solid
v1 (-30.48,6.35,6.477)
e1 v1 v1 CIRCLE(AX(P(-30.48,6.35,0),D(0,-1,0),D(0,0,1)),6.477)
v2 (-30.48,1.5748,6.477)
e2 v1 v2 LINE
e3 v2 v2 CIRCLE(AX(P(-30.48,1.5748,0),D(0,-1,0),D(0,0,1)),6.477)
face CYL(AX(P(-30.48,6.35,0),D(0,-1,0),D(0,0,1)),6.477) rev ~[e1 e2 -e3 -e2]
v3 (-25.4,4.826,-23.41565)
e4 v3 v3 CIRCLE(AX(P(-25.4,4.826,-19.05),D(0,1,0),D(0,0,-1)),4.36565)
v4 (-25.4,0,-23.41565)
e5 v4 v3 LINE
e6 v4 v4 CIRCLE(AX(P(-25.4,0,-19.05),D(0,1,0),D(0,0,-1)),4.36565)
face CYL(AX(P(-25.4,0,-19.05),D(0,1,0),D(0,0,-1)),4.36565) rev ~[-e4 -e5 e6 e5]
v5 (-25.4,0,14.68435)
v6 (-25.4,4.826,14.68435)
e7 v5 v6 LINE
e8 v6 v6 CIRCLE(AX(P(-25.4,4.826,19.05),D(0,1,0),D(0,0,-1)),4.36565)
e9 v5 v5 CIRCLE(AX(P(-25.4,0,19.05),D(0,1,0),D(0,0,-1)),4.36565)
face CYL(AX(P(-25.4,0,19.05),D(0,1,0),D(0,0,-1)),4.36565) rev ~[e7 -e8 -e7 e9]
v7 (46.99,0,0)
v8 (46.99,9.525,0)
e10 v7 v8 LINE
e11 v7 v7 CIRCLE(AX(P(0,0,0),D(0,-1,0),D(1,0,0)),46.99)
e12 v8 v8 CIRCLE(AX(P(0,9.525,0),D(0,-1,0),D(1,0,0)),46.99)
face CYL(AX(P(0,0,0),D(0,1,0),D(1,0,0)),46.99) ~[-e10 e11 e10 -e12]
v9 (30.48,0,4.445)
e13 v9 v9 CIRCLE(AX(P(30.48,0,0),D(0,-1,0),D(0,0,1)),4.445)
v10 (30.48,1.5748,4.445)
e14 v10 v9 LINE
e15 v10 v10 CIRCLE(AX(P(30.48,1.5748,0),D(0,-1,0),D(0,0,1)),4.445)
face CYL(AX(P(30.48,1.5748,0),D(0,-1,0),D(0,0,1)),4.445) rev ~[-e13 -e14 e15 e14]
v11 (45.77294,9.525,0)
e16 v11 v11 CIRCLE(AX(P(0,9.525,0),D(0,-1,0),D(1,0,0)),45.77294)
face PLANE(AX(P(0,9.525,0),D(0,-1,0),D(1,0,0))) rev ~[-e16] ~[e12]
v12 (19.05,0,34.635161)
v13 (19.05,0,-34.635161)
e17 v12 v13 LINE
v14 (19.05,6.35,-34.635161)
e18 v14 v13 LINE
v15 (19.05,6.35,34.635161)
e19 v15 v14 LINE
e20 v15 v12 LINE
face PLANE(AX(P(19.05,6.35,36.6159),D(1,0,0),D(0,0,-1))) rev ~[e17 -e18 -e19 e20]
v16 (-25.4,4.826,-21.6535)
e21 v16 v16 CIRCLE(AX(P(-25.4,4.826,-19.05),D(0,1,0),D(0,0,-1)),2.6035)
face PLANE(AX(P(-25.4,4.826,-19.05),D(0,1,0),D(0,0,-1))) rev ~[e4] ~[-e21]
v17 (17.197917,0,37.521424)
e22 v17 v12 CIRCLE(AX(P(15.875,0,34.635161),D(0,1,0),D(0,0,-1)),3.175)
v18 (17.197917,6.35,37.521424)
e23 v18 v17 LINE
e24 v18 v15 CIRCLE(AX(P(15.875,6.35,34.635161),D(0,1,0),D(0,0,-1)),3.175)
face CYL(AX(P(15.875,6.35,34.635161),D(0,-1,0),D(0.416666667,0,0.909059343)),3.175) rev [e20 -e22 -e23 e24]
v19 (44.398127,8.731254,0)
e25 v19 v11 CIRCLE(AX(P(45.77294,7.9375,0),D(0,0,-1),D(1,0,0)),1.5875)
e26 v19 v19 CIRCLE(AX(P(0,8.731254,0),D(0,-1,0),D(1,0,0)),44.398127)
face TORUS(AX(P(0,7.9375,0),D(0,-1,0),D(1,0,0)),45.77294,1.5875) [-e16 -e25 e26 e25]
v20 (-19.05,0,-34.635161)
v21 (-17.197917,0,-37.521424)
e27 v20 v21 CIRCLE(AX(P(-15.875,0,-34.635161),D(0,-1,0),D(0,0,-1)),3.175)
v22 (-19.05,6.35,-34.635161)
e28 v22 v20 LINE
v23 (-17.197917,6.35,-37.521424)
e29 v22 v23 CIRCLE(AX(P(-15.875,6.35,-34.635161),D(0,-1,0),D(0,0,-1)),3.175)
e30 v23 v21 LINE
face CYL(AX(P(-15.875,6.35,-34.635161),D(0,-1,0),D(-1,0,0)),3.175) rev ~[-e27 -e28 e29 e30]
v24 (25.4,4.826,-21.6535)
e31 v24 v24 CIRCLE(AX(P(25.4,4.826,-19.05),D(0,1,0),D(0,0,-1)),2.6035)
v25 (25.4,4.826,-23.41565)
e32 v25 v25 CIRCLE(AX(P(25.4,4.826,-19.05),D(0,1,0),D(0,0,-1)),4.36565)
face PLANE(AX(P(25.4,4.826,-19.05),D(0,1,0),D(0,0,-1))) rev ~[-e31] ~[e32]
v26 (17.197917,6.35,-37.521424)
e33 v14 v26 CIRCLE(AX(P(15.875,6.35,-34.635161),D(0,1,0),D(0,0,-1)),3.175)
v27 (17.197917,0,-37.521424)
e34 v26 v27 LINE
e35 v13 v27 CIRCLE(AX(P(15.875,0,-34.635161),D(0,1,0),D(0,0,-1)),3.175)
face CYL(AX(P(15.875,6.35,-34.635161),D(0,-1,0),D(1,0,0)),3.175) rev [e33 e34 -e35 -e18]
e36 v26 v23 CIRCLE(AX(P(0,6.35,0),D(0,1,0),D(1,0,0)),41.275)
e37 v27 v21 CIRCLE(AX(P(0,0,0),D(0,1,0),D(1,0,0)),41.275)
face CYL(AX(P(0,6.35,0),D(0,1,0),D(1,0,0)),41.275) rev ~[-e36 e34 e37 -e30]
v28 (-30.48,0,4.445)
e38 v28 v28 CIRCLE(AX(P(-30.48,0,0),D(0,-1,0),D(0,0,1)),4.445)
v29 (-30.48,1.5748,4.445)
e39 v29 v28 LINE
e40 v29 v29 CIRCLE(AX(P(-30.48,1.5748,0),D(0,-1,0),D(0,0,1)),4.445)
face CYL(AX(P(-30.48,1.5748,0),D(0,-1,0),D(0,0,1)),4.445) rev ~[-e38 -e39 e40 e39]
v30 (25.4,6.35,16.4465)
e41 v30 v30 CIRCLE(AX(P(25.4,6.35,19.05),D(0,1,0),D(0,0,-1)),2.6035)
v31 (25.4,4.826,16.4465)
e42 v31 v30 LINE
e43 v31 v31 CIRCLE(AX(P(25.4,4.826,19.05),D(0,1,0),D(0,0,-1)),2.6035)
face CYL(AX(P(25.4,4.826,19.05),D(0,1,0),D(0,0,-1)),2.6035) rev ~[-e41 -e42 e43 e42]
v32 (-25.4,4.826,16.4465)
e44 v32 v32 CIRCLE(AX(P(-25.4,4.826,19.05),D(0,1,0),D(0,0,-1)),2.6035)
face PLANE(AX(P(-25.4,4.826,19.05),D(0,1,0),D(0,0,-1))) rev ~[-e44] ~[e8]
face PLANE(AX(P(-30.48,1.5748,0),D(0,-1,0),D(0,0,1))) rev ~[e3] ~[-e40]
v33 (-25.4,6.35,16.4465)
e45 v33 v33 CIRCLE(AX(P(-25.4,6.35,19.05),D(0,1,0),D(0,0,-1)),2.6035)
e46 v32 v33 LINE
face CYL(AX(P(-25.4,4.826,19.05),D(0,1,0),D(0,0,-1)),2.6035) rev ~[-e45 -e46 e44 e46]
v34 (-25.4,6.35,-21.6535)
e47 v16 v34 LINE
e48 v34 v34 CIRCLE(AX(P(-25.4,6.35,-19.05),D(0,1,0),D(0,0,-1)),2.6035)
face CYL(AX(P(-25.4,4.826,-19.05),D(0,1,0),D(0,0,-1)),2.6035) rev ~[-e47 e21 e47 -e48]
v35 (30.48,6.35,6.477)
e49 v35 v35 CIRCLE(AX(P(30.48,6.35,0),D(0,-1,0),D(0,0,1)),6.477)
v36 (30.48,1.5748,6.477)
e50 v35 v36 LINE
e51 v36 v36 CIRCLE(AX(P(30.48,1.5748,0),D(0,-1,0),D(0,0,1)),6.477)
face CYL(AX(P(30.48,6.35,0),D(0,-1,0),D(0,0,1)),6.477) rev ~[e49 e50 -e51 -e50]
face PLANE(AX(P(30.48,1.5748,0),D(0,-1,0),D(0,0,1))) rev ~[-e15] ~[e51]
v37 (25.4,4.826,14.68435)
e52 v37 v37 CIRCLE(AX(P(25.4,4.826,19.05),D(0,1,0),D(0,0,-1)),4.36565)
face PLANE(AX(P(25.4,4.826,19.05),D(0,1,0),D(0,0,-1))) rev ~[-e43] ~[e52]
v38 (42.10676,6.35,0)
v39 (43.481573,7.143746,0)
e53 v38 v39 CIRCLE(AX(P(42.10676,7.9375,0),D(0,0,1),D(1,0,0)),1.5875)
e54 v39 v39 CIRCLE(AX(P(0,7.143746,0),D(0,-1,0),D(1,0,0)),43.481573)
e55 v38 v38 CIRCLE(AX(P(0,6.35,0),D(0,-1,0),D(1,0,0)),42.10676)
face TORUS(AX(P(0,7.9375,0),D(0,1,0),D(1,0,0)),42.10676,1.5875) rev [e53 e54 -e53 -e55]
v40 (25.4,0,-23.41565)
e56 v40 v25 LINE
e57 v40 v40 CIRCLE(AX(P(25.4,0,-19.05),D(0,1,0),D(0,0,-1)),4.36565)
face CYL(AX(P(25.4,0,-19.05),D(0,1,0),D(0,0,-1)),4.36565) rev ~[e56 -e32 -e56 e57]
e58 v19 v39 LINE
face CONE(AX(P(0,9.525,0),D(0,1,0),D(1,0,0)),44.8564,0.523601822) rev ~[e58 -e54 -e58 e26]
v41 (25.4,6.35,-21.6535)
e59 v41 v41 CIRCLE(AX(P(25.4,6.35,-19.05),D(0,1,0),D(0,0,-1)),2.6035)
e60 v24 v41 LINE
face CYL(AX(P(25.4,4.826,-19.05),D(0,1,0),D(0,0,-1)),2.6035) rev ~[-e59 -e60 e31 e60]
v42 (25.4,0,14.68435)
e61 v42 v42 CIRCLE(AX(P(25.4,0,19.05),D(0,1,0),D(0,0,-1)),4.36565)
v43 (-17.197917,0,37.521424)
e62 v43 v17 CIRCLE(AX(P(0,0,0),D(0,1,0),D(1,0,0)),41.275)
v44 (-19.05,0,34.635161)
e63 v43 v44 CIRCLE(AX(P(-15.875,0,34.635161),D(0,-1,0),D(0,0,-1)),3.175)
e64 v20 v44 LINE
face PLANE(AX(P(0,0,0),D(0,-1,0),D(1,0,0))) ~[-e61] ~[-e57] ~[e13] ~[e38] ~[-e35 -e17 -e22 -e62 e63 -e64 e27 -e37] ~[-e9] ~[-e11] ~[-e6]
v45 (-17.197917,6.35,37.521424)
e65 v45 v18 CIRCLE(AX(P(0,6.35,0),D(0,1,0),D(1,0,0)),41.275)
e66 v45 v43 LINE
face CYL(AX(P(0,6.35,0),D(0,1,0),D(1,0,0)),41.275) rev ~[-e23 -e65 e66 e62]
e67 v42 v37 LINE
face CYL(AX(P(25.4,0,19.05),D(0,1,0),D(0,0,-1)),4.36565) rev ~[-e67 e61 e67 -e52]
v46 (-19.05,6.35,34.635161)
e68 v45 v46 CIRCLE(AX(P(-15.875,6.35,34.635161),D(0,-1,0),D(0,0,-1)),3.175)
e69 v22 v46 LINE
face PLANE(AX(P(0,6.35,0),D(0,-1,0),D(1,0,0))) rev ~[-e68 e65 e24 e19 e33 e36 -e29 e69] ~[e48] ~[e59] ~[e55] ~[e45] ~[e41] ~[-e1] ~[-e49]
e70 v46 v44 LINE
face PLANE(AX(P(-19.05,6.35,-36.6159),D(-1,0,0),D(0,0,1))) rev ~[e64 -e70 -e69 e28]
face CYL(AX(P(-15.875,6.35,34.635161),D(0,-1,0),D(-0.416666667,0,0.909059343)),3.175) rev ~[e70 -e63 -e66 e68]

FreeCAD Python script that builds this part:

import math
import FreeCAD as App
import Part
import Sketcher

V = App.Vector
Q = App.Units.Quantity


def edges_at(feature, points):
    """Names of the edges that pass closest to the given points."""
    edges = feature.Shape.Edges
    near = lambda p: min(range(len(edges)), key=lambda i: edges[i].distToShape(Part.Vertex(*p))[0])
    return sorted({f"Edge{near(p) + 1}" for p in points})

doc = App.newDocument("Part")
params = doc.addObject("Spreadsheet::Sheet", "Params")
for row, (alias, value) in enumerate([
    ("sketch1_width", "1.85 in"),
    ("sketch1_height", "0.375 in"),
    ("revolution_angle", "360 deg"),
    ("fillet_radius", "0.0625 in"),
    ("sketch2_radius", "1.625 in"),
    ("sketch3_diameter", "0.35 in"),
    ("hole_diameter", "0.35 in"),
    ("hole_cbore_diameter", "0.51 in"),
    ("hole_cbore_depth", "0.188 in"),
    ("sketch4_diameter", "0.205 in"),
    ("hole2_diameter", "0.205 in"),
    ("hole2_cbore_diameter", "0.343752 in"),
    ("hole2_cbore_depth", "0.19 in"),
    ("fillet2_radius", "0.125 in"),
], start=1):
    params.set(f"A{row}", alias)
    params.set(f"B{row}", "=" + value)
    params.setAlias(f"B{row}", alias)

body = doc.addObject("PartDesign::Body", "Body")

sketch1 = doc.addObject("Sketcher::SketchObject", "Sketch")
body.addObject(sketch1)
sketch1.AttachmentSupport = (doc.XY_Plane, [""])
sketch1.MapMode = "FlatFace"
sketch1.addGeometry([
    Part.LineSegment(V(0, 6.3, 0), V(0, 0, 0)),
    Part.LineSegment(V(0, 0, 0), V(47, 0, 0)),
    Part.LineSegment(V(47, 0, 0), V(47, 9.5, 0)),
    Part.LineSegment(V(47, 9.5, 0), V(44.9, 9.5, 0)),
    Part.LineSegment(V(44.9, 9.5, 0), V(43, 6.3, 0)),
    Part.LineSegment(V(43, 6.3, 0), V(0, 6.3, 0)),
], False)
sketch1.addConstraint([
    Sketcher.Constraint("Coincident", 0, 2, 1, 1),
    Sketcher.Constraint("Coincident", 1, 2, 2, 1),
    Sketcher.Constraint("Coincident", 2, 2, 3, 1),
    Sketcher.Constraint("Coincident", 3, 2, 4, 1),
    Sketcher.Constraint("Coincident", 4, 2, 5, 1),
    Sketcher.Constraint("Coincident", 5, 2, 0, 1),
    Sketcher.Constraint("Vertical", 0),
    Sketcher.Constraint("Horizontal", 1),
    Sketcher.Constraint("Vertical", 2),
    Sketcher.Constraint("Horizontal", 3),
    Sketcher.Constraint("Horizontal", 5),
    Sketcher.Constraint("Coincident", 0, 2, -1, 1),
    Sketcher.Constraint("DistanceX", 1, 1, 1, 2, Q("1.85 in")),
    Sketcher.Constraint("DistanceY", 2, 1, 2, 2, Q("0.375 in")),
    Sketcher.Constraint("DistanceX", -1, 1, 3, 2, Q("1.766 in")),
    Sketcher.Constraint("Angle", 4, Q("-120.0002 deg")),
    Sketcher.Constraint("DistanceY", 4, 2, 3, 2, Q("0.125 in")),
])
sketch1.setExpression("Constraints[12]", "Params.sketch1_width")
sketch1.setExpression("Constraints[13]", "Params.sketch1_height")
revolution = doc.addObject("PartDesign::Revolution", "Revolution")
body.addObject(revolution)
revolution.Profile = sketch1
revolution.ReferenceAxis = (sketch1, ["V_Axis"])
revolution.setExpression("Angle", "Params.revolution_angle")
doc.recompute()

fillet = doc.addObject("PartDesign::Fillet", "Fillet")
body.addObject(fillet)
fillet.Base = (revolution, edges_at(revolution, [(-44.856, 9.525, 0), (-43.023, 6.35, 0)]))
fillet.setExpression("Radius", "Params.fillet_radius")

sketch2 = doc.addObject("Sketcher::SketchObject", "Sketch001")
body.addObject(sketch2)
sketch2.AttachmentSupport = (doc.XZ_Plane, [""])
sketch2.MapMode = "FlatFace"
sketch2.AttachmentOffset = App.Placement(V(0, 0, -0.25 * 25.4), App.Rotation())
sketch2.addGeometry([
    Part.LineSegment(V(19, 37, 0), V(19, -37, 0)),
    Part.ArcOfCircle(Part.Circle(V(0, 0, 0), V(0, 0, 1), 41), math.radians(-117), math.radians(-63)),
    Part.LineSegment(V(-19, -37, 0), V(-19, 37, 0)),
    Part.ArcOfCircle(Part.Circle(V(0, 0, 0), V(0, 0, 1), 41), math.radians(63), math.radians(117)),
], False)
sketch2.addConstraint([
    Sketcher.Constraint("Coincident", 0, 2, 1, 2),
    Sketcher.Constraint("Coincident", 1, 1, 2, 1),
    Sketcher.Constraint("Coincident", 2, 2, 3, 2),
    Sketcher.Constraint("Coincident", 3, 1, 0, 1),
    Sketcher.Constraint("Vertical", 0),
    Sketcher.Constraint("Vertical", 2),
    Sketcher.Constraint("Coincident", 1, 3, -1, 1),
    Sketcher.Constraint("Coincident", 3, 3, -1, 1),
    Sketcher.Constraint("Equal", 1, 3),
    Sketcher.Constraint("Horizontal", 0, 2, 1, 1),
    Sketcher.Constraint("Radius", 1, Q("1.625 in")),
    Sketcher.Constraint("DistanceX", 1, 1, 0, 2, Q("1.5 in")),
])
sketch2.setExpression("Constraints[10]", "Params.sketch2_radius")
pocket1 = doc.addObject("PartDesign::Pocket", "Pocket")
body.addObject(pocket1)
pocket1.Profile = sketch2
pocket1.Type = "ThroughAll"
pocket1.Reversed = True

sketch3 = doc.addObject("Sketcher::SketchObject", "Sketch002")
body.addObject(sketch3)
sketch3.AttachmentSupport = (doc.XZ_Plane, [""])
sketch3.MapMode = "FlatFace"
sketch3.AttachmentOffset = App.Placement(V(0, 0, -0.25 * 25.4), App.Rotation())
sketch3.addGeometry([
    Part.Circle(V(-30.5, 0, 0), V(0, 0, 1), 4.4),
    Part.Circle(V(30.5, 0, 0), V(0, 0, 1), 4.4),
], False)
sketch3.addConstraint([
    Sketcher.Constraint("Equal", 0, 1),
    Sketcher.Constraint("Symmetric", 0, 3, 1, 3, -1, 1),
    Sketcher.Constraint("PointOnObject", 0, 3, -1),
    Sketcher.Constraint("Diameter", 0, Q("0.35 in")),
    Sketcher.Constraint("DistanceX", 0, 3, -1, 1, Q("1.2 in")),
])
sketch3.setExpression("Constraints[3]", "Params.sketch3_diameter")
doc.recompute()
hole = doc.addObject("PartDesign::Hole", "Hole")
body.addObject(hole)
hole.Profile = sketch3
hole.ThreadType = "None"
hole.setExpression("Diameter", "Params.hole_diameter")
hole.DepthType = "ThroughAll"
hole.HoleCutType = "Counterbore"
hole.setExpression("HoleCutDiameter", "Params.hole_cbore_diameter")
hole.setExpression("HoleCutDepth", "Params.hole_cbore_depth")
hole.Reversed = True

sketch4 = doc.addObject("Sketcher::SketchObject", "Sketch003")
body.addObject(sketch4)
sketch4.AttachmentSupport = (doc.XZ_Plane, [""])
sketch4.MapMode = "FlatFace"
sketch4.addGeometry([
    Part.Circle(V(25.4, -19.1, 0), V(0, 0, 1), 2.6),
    Part.Circle(V(-25.4, -19.1, 0), V(0, 0, 1), 2.6),
    Part.Circle(V(-25.4, 19.1, 0), V(0, 0, 1), 2.6),
    Part.Circle(V(25.4, 19.1, 0), V(0, 0, 1), 2.6),
], False)
sketch4.addConstraint([
    Sketcher.Constraint("Equal", 0, 1),
    Sketcher.Constraint("Equal", 1, 2),
    Sketcher.Constraint("Equal", 2, 3),
    Sketcher.Constraint("Symmetric", 0, 3, 2, 3, -1, 1),
    Sketcher.Constraint("Symmetric", 1, 3, 3, 3, -1, 1),
    Sketcher.Constraint("Symmetric", 0, 3, 1, 3, -2),
    Sketcher.Constraint("Diameter", 0, Q("0.205 in")),
    Sketcher.Constraint("DistanceX", -1, 1, 0, 3, Q("1 in")),
    Sketcher.Constraint("DistanceY", 1, 3, 2, 3, Q("1.5 in")),
])
sketch4.setExpression("Constraints[6]", "Params.sketch4_diameter")
doc.recompute()
hole2 = doc.addObject("PartDesign::Hole", "Hole001")
body.addObject(hole2)
hole2.Profile = sketch4
hole2.ThreadType = "None"
hole2.setExpression("Diameter", "Params.hole2_diameter")
hole2.DepthType = "ThroughAll"
hole2.HoleCutType = "Counterbore"
hole2.setExpression("HoleCutDiameter", "Params.hole2_cbore_diameter")
hole2.setExpression("HoleCutDepth", "Params.hole2_cbore_depth")
doc.recompute()

fillet2 = doc.addObject("PartDesign::Fillet", "Fillet001")
body.addObject(fillet2)
fillet2.Base = (hole2, edges_at(hole2, [
    (19.05, 3.175, -36.616),
    (19.05, 3.175, 36.616),
    (-19.05, 3.175, 36.616),
    (-19.05, 3.175, -36.616),
]))
fillet2.setExpression("Radius", "Params.fillet2_radius")

doc.recompute()
